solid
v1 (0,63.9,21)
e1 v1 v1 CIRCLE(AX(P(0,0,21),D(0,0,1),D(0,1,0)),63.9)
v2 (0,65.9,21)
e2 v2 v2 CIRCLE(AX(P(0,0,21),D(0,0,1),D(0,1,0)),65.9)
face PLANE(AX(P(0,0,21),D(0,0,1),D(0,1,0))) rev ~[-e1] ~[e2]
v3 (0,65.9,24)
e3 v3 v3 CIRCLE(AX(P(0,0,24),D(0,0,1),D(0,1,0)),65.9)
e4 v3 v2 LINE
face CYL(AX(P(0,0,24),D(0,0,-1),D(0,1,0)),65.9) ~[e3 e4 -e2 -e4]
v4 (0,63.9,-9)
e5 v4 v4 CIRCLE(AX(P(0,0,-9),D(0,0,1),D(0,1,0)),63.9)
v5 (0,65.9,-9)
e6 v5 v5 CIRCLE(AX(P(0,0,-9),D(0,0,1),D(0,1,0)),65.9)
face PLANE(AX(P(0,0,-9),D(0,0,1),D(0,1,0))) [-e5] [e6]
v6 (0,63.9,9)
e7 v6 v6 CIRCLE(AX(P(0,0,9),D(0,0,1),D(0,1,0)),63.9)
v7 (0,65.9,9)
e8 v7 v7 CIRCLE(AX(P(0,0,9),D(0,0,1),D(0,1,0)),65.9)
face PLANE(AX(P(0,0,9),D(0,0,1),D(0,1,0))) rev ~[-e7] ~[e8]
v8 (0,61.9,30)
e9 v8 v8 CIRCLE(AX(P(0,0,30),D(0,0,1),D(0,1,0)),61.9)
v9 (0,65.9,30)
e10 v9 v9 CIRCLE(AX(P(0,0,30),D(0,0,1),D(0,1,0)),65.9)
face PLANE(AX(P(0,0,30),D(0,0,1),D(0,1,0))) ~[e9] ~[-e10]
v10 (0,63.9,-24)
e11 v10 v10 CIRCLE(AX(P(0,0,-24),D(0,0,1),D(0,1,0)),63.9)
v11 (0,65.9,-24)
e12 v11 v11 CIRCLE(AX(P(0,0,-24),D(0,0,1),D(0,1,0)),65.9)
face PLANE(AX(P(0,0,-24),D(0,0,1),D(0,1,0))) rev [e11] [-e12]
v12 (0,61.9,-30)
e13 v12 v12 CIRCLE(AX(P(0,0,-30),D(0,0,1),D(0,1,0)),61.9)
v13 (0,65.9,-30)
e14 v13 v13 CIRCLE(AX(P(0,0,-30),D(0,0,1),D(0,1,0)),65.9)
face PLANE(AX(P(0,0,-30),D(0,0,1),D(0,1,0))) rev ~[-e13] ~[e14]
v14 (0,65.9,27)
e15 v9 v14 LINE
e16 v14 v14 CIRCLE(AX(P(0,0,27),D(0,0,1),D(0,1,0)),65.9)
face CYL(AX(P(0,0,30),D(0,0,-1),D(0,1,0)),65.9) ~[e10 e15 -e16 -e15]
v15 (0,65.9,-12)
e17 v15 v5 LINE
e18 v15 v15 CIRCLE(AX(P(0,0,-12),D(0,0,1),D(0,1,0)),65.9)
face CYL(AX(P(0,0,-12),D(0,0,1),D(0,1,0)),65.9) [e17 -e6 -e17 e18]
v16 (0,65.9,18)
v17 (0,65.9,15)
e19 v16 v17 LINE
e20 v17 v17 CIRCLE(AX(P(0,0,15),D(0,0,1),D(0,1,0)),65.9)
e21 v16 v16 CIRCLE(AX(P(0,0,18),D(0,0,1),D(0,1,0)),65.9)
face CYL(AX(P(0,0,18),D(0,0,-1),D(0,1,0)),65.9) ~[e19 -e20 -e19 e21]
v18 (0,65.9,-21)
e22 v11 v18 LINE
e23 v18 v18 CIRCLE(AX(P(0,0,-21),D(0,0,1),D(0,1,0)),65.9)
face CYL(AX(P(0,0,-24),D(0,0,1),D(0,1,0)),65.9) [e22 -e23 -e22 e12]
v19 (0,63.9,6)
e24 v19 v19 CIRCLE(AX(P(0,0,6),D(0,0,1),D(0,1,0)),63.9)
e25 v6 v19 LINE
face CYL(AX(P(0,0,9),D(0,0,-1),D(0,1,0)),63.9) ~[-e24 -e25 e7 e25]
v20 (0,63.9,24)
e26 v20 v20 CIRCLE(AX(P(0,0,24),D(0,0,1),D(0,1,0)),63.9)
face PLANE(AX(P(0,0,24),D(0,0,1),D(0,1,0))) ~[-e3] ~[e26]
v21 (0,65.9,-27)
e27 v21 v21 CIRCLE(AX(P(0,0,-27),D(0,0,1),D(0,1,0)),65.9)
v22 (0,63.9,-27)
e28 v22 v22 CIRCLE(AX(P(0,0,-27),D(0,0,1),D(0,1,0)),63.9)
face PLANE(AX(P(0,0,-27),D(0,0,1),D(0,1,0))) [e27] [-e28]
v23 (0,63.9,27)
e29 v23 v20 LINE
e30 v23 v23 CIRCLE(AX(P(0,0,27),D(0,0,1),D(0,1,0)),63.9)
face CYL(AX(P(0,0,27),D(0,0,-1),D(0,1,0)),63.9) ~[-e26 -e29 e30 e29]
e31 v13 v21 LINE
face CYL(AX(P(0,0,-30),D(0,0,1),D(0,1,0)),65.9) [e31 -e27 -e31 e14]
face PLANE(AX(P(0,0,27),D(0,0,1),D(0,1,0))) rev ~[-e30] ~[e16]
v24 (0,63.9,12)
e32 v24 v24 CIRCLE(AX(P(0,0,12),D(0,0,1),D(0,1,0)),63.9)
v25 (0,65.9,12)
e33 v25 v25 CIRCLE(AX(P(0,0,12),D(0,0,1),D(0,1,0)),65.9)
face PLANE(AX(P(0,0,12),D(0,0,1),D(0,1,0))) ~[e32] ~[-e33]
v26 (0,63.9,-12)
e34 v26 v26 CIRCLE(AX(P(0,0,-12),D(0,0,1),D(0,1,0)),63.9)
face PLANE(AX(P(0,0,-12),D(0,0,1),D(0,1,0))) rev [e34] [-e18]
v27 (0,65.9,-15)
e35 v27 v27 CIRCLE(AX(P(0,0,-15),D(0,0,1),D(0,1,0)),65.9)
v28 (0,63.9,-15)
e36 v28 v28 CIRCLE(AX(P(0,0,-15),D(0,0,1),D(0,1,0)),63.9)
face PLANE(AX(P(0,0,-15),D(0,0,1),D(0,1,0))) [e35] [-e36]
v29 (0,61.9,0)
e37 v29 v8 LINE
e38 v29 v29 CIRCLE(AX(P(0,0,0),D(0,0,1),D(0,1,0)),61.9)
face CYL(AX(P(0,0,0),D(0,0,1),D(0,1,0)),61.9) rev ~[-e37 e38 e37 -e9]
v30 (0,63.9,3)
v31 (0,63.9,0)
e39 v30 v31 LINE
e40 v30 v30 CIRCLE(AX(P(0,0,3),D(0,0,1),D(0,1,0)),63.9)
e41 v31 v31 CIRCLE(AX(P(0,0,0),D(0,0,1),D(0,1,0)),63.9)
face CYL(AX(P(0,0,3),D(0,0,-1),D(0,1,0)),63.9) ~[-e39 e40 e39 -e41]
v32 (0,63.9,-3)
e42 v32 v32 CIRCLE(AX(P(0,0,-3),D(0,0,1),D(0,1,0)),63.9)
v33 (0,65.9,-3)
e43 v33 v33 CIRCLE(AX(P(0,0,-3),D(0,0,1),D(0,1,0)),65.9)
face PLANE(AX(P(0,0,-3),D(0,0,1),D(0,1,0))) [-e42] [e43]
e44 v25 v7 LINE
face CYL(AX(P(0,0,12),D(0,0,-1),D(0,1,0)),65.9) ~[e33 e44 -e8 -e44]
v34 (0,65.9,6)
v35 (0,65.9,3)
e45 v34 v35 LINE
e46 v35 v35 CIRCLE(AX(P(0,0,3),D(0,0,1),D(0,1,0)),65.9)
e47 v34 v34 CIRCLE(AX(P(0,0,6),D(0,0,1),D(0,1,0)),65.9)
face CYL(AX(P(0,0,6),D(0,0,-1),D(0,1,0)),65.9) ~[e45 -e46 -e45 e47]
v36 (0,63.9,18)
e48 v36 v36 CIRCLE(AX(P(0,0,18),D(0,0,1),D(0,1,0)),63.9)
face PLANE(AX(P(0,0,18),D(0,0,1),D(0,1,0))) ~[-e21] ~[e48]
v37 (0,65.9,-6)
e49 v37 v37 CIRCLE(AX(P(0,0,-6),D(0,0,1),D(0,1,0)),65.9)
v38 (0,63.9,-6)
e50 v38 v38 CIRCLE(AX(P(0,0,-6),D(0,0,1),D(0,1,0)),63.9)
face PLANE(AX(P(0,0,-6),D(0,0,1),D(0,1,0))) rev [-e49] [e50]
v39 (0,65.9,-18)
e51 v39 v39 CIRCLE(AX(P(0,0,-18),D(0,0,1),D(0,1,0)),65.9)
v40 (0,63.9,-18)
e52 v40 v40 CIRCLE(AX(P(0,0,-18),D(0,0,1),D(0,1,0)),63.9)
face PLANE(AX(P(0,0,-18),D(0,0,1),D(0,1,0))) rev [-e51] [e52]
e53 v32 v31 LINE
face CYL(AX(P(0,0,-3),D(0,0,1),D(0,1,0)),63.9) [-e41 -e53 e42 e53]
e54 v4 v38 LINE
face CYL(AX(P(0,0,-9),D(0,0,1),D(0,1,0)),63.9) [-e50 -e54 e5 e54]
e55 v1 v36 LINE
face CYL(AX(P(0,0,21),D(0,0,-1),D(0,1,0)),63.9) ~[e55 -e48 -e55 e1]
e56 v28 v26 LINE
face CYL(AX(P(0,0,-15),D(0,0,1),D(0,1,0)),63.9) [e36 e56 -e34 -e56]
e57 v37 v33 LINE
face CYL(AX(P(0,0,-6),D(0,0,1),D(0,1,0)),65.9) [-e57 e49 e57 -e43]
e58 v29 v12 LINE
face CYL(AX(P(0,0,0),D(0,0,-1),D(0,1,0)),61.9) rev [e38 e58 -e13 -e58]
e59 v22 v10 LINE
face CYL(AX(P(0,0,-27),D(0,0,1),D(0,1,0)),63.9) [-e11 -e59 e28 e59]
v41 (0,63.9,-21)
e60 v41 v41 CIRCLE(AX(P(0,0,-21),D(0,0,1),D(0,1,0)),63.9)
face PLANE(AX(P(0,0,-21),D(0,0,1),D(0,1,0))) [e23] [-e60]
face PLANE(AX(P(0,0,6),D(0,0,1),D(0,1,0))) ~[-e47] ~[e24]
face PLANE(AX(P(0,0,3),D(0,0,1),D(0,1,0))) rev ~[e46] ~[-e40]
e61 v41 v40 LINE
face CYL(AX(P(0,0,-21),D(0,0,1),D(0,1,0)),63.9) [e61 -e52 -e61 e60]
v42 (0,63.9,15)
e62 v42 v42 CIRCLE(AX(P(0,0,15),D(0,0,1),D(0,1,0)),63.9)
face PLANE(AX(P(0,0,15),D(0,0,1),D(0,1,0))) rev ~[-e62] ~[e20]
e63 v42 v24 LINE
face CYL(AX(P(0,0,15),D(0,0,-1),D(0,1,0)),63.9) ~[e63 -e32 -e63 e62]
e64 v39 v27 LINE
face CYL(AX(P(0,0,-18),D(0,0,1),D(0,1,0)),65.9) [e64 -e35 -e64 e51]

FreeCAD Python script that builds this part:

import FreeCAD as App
import Part
import Sketcher
Q = App.Units.Quantity

doc = App.newDocument("Part")
body = doc.addObject("PartDesign::Body", "Body")

sketch1 = body.newObject("Sketcher::SketchObject", "Sketch")
sketch1.AttachmentSupport = (doc.getObject("YZ_Plane"), [""])
sketch1.MapMode = "FlatFace"
sketch1.addGeometry(Part.LineSegment(App.Vector(61.9, 30, 0), App.Vector(61.9, -30, 0)), False)
sketch1.addGeometry(Part.LineSegment(App.Vector(61.9, -30, 0), App.Vector(65.9, -30, 0)), False)
sketch1.addGeometry(Part.LineSegment(App.Vector(65.9, -30, 0), App.Vector(65.9, -27, 0)), False)
sketch1.addGeometry(Part.LineSegment(App.Vector(65.9, -27, 0), App.Vector(63.9, -27, 0)), False)
sketch1.addGeometry(Part.LineSegment(App.Vector(63.9, -27, 0), App.Vector(63.9, -24, 0)), False)
sketch1.addGeometry(Part.LineSegment(App.Vector(63.9, -24, 0), App.Vector(65.9, -24, 0)), False)
sketch1.addGeometry(Part.LineSegment(App.Vector(65.9, -24, 0), App.Vector(65.9, -21, 0)), False)
sketch1.addGeometry(Part.LineSegment(App.Vector(65.9, -21, 0), App.Vector(63.9, -21, 0)), False)
sketch1.addGeometry(Part.LineSegment(App.Vector(63.9, -21, 0), App.Vector(63.9, -18, 0)), False)
sketch1.addGeometry(Part.LineSegment(App.Vector(63.9, -18, 0), App.Vector(65.9, -18, 0)), False)
sketch1.addGeometry(Part.LineSegment(App.Vector(65.9, -18, 0), App.Vector(65.9, -15, 0)), False)
sketch1.addGeometry(Part.LineSegment(App.Vector(65.9, -15, 0), App.Vector(63.9, -15, 0)), False)
sketch1.addGeometry(Part.LineSegment(App.Vector(63.9, -15, 0), App.Vector(63.9, -12, 0)), False)
sketch1.addGeometry(Part.LineSegment(App.Vector(63.9, -12, 0), App.Vector(65.9, -12, 0)), False)
sketch1.addGeometry(Part.LineSegment(App.Vector(65.9, -12, 0), App.Vector(65.9, -9, 0)), False)
sketch1.addGeometry(Part.LineSegment(App.Vector(65.9, -9, 0), App.Vector(63.9, -9, 0)), False)
sketch1.addGeometry(Part.LineSegment(App.Vector(63.9, -9, 0), App.Vector(63.9, -6, 0)), False)
sketch1.addGeometry(Part.LineSegment(App.Vector(63.9, -6, 0), App.Vector(65.9, -6, 0)), False)
sketch1.addGeometry(Part.LineSegment(App.Vector(65.9, -6, 0), App.Vector(65.9, -3, 0)), False)
sketch1.addGeometry(Part.LineSegment(App.Vector(65.9, -3, 0), App.Vector(63.9, -3, 0)), False)
sketch1.addGeometry(Part.LineSegment(App.Vector(63.9, -3, 0), App.Vector(63.9, 3, 0)), False)
sketch1.addGeometry(Part.LineSegment(App.Vector(63.9, 3, 0), App.Vector(65.9, 3, 0)), False)
sketch1.addGeometry(Part.LineSegment(App.Vector(65.9, 3, 0), App.Vector(65.9, 6, 0)), False)
sketch1.addGeometry(Part.LineSegment(App.Vector(65.9, 6, 0), App.Vector(63.9, 6, 0)), False)
sketch1.addGeometry(Part.LineSegment(App.Vector(63.9, 6, 0), App.Vector(63.9, 9, 0)), False)
sketch1.addGeometry(Part.LineSegment(App.Vector(63.9, 9, 0), App.Vector(65.9, 9, 0)), False)
sketch1.addGeometry(Part.LineSegment(App.Vector(65.9, 9, 0), App.Vector(65.9, 12, 0)), False)
sketch1.addGeometry(Part.LineSegment(App.Vector(65.9, 12, 0), App.Vector(63.9, 12, 0)), False)
sketch1.addGeometry(Part.LineSegment(App.Vector(63.9, 12, 0), App.Vector(63.9, 15, 0)), False)
sketch1.addGeometry(Part.LineSegment(App.Vector(63.9, 15, 0), App.Vector(65.9, 15, 0)), False)
sketch1.addGeometry(Part.LineSegment(App.Vector(65.9, 15, 0), App.Vector(65.9, 18, 0)), False)
sketch1.addGeometry(Part.LineSegment(App.Vector(65.9, 18, 0), App.Vector(63.9, 18, 0)), False)
sketch1.addGeometry(Part.LineSegment(App.Vector(63.9, 18, 0), App.Vector(63.9, 21, 0)), False)
sketch1.addGeometry(Part.LineSegment(App.Vector(63.9, 21, 0), App.Vector(65.9, 21, 0)), False)
sketch1.addGeometry(Part.LineSegment(App.Vector(65.9, 21, 0), App.Vector(65.9, 24, 0)), False)
sketch1.addGeometry(Part.LineSegment(App.Vector(65.9, 24, 0), App.Vector(63.9, 24, 0)), False)
sketch1.addGeometry(Part.LineSegment(App.Vector(63.9, 24, 0), App.Vector(63.9, 27, 0)), False)
sketch1.addGeometry(Part.LineSegment(App.Vector(63.9, 27, 0), App.Vector(65.9, 27, 0)), False)
sketch1.addGeometry(Part.LineSegment(App.Vector(65.9, 27, 0), App.Vector(65.9, 30, 0)), False)
sketch1.addGeometry(Part.LineSegment(App.Vector(65.9, 30, 0), App.Vector(61.9, 30, 0)), False)
sketch1.addConstraint(Sketcher.Constraint("Coincident", 0, 2, 1, 1))
sketch1.addConstraint(Sketcher.Constraint("Coincident", 1, 2, 2, 1))
sketch1.addConstraint(Sketcher.Constraint("Coincident", 2, 2, 3, 1))
sketch1.addConstraint(Sketcher.Constraint("Coincident", 3, 2, 4, 1))
sketch1.addConstraint(Sketcher.Constraint("Coincident", 4, 2, 5, 1))
sketch1.addConstraint(Sketcher.Constraint("Coincident", 5, 2, 6, 1))
sketch1.addConstraint(Sketcher.Constraint("Coincident", 6, 2, 7, 1))
sketch1.addConstraint(Sketcher.Constraint("Coincident", 7, 2, 8, 1))
sketch1.addConstraint(Sketcher.Constraint("Coincident", 8, 2, 9, 1))
sketch1.addConstraint(Sketcher.Constraint("Coincident", 9, 2, 10, 1))
sketch1.addConstraint(Sketcher.Constraint("Coincident", 10, 2, 11, 1))
sketch1.addConstraint(Sketcher.Constraint("Coincident", 11, 2, 12, 1))
sketch1.addConstraint(Sketcher.Constraint("Coincident", 12, 2, 13, 1))
sketch1.addConstraint(Sketcher.Constraint("Coincident", 13, 2, 14, 1))
sketch1.addConstraint(Sketcher.Constraint("Coincident", 14, 2, 15, 1))
sketch1.addConstraint(Sketcher.Constraint("Coincident", 15, 2, 16, 1))
sketch1.addConstraint(Sketcher.Constraint("Coincident", 16, 2, 17, 1))
sketch1.addConstraint(Sketcher.Constraint("Coincident", 17, 2, 18, 1))
sketch1.addConstraint(Sketcher.Constraint("Coincident", 18, 2, 19, 1))
sketch1.addConstraint(Sketcher.Constraint("Coincident", 19, 2, 20, 1))
sketch1.addConstraint(Sketcher.Constraint("Coincident", 20, 2, 21, 1))
sketch1.addConstraint(Sketcher.Constraint("Coincident", 21, 2, 22, 1))
sketch1.addConstraint(Sketcher.Constraint("Coincident", 22, 2, 23, 1))
sketch1.addConstraint(Sketcher.Constraint("Coincident", 23, 2, 24, 1))
sketch1.addConstraint(Sketcher.Constraint("Coincident", 24, 2, 25, 1))
sketch1.addConstraint(Sketcher.Constraint("Coincident", 25, 2, 26, 1))
sketch1.addConstraint(Sketcher.Constraint("Coincident", 26, 2, 27, 1))
sketch1.addConstraint(Sketcher.Constraint("Coincident", 27, 2, 28, 1))
sketch1.addConstraint(Sketcher.Constraint("Coincident", 28, 2, 29, 1))
sketch1.addConstraint(Sketcher.Constraint("Coincident", 29, 2, 30, 1))
sketch1.addConstraint(Sketcher.Constraint("Coincident", 30, 2, 31, 1))
sketch1.addConstraint(Sketcher.Constraint("Coincident", 31, 2, 32, 1))
sketch1.addConstraint(Sketcher.Constraint("Coincident", 32, 2, 33, 1))
sketch1.addConstraint(Sketcher.Constraint("Coincident", 33, 2, 34, 1))
sketch1.addConstraint(Sketcher.Constraint("Coincident", 34, 2, 35, 1))
sketch1.addConstraint(Sketcher.Constraint("Coincident", 35, 2, 36, 1))
sketch1.addConstraint(Sketcher.Constraint("Coincident", 36, 2, 37, 1))
sketch1.addConstraint(Sketcher.Constraint("Coincident", 37, 2, 38, 1))
sketch1.addConstraint(Sketcher.Constraint("Coincident", 38, 2, 39, 1))
sketch1.addConstraint(Sketcher.Constraint("Coincident", 39, 2, 0, 1))
sketch1.addConstraint(Sketcher.Constraint("Vertical", 0))
sketch1.addConstraint(Sketcher.Constraint("Horizontal", 1))
sketch1.addConstraint(Sketcher.Constraint("Vertical", 2))
sketch1.addConstraint(Sketcher.Constraint("Horizontal", 3))
sketch1.addConstraint(Sketcher.Constraint("Vertical", 4))
sketch1.addConstraint(Sketcher.Constraint("Horizontal", 5))
sketch1.addConstraint(Sketcher.Constraint("Vertical", 6))
sketch1.addConstraint(Sketcher.Constraint("Horizontal", 7))
sketch1.addConstraint(Sketcher.Constraint("Vertical", 8))
sketch1.addConstraint(Sketcher.Constraint("Horizontal", 9))
sketch1.addConstraint(Sketcher.Constraint("Vertical", 10))
sketch1.addConstraint(Sketcher.Constraint("Horizontal", 11))
sketch1.addConstraint(Sketcher.Constraint("Vertical", 12))
sketch1.addConstraint(Sketcher.Constraint("Horizontal", 13))
sketch1.addConstraint(Sketcher.Constraint("Vertical", 14))
sketch1.addConstraint(Sketcher.Constraint("Horizontal", 15))
sketch1.addConstraint(Sketcher.Constraint("Vertical", 16))
sketch1.addConstraint(Sketcher.Constraint("Horizontal", 17))
sketch1.addConstraint(Sketcher.Constraint("Vertical", 18))
sketch1.addConstraint(Sketcher.Constraint("Horizontal", 19))
sketch1.addConstraint(Sketcher.Constraint("Vertical", 20))
sketch1.addConstraint(Sketcher.Constraint("Horizontal", 21))
sketch1.addConstraint(Sketcher.Constraint("Vertical", 22))
sketch1.addConstraint(Sketcher.Constraint("Horizontal", 23))
sketch1.addConstraint(Sketcher.Constraint("Vertical", 24))
sketch1.addConstraint(Sketcher.Constraint("Horizontal", 25))
sketch1.addConstraint(Sketcher.Constraint("Vertical", 26))
sketch1.addConstraint(Sketcher.Constraint("Horizontal", 27))
sketch1.addConstraint(Sketcher.Constraint("Vertical", 28))
sketch1.addConstraint(Sketcher.Constraint("Horizontal", 29))
sketch1.addConstraint(Sketcher.Constraint("Vertical", 30))
sketch1.addConstraint(Sketcher.Constraint("Horizontal", 31))
sketch1.addConstraint(Sketcher.Constraint("Vertical", 32))
sketch1.addConstraint(Sketcher.Constraint("Horizontal", 33))
sketch1.addConstraint(Sketcher.Constraint("Vertical", 34))
sketch1.addConstraint(Sketcher.Constraint("Horizontal", 35))
sketch1.addConstraint(Sketcher.Constraint("Vertical", 36))
sketch1.addConstraint(Sketcher.Constraint("Horizontal", 37))
sketch1.addConstraint(Sketcher.Constraint("Vertical", 38))
sketch1.addConstraint(Sketcher.Constraint("Horizontal", 39))
sketch1.addConstraint(Sketcher.Constraint("Symmetric", 18, 2, 21, 2, -1))
sketch1.addConstraint(Sketcher.Constraint("Symmetric", 16, 2, 23, 2, -1))
sketch1.addConstraint(Sketcher.Constraint("Symmetric", 14, 2, 25, 2, -1))
sketch1.addConstraint(Sketcher.Constraint("Symmetric", 12, 2, 27, 2, -1))
sketch1.addConstraint(Sketcher.Constraint("Symmetric", 10, 2, 29, 2, -1))
sketch1.addConstraint(Sketcher.Constraint("Symmetric", 8, 2, 31, 2, -1))
sketch1.addConstraint(Sketcher.Constraint("Symmetric", 6, 2, 33, 2, -1))
sketch1.addConstraint(Sketcher.Constraint("Symmetric", 4, 2, 35, 2, -1))
sketch1.addConstraint(Sketcher.Constraint("Symmetric", 2, 2, 37, 2, -1))
sketch1.addConstraint(Sketcher.Constraint("Vertical", 2, 2, 5, 2))
sketch1.addConstraint(Sketcher.Constraint("Vertical", 4, 2, 7, 2))
sketch1.addConstraint(Sketcher.Constraint("Vertical", 6, 2, 9, 2))
sketch1.addConstraint(Sketcher.Constraint("Vertical", 8, 2, 11, 2))
sketch1.addConstraint(Sketcher.Constraint("Vertical", 10, 2, 13, 2))
sketch1.addConstraint(Sketcher.Constraint("Vertical", 12, 2, 15, 2))
sketch1.addConstraint(Sketcher.Constraint("Vertical", 14, 2, 17, 2))
sketch1.addConstraint(Sketcher.Constraint("Vertical", 16, 2, 19, 2))
sketch1.addConstraint(Sketcher.Constraint("Equal", 2, 4))
sketch1.addConstraint(Sketcher.Constraint("Equal", 4, 6))
sketch1.addConstraint(Sketcher.Constraint("Equal", 6, 8))
sketch1.addConstraint(Sketcher.Constraint("Equal", 8, 10))
sketch1.addConstraint(Sketcher.Constraint("Equal", 10, 12))
sketch1.addConstraint(Sketcher.Constraint("Equal", 12, 14))
sketch1.addConstraint(Sketcher.Constraint("Equal", 14, 16))
sketch1.addConstraint(Sketcher.Constraint("Equal", 16, 18))
sketch1.addConstraint(Sketcher.Constraint("Equal", 36, 38))
sketch1.addConstraint(Sketcher.Constraint("DistanceX", 1, 1, 1, 2, Q("4 mm")))
sketch1.addConstraint(Sketcher.Constraint("DistanceY", 2, 1, 2, 2, Q("3 mm")))
sketch1.addConstraint(Sketcher.Constraint("DistanceY", 0, 2, -1, 1, Q("30 mm")))
sketch1.addConstraint(Sketcher.Constraint("DistanceX", 3, 2, 3, 1, Q("2 mm")))
sketch1.addConstraint(Sketcher.Constraint("DistanceX", -1, 1, 0, 2, Q("61.9 mm")))
revolution = body.newObject("PartDesign::Revolution", "Revolution")
revolution.Profile = sketch1
revolution.ReferenceAxis = (sketch1, ["V_Axis"])
revolution.Angle = 360

doc.recompute()
